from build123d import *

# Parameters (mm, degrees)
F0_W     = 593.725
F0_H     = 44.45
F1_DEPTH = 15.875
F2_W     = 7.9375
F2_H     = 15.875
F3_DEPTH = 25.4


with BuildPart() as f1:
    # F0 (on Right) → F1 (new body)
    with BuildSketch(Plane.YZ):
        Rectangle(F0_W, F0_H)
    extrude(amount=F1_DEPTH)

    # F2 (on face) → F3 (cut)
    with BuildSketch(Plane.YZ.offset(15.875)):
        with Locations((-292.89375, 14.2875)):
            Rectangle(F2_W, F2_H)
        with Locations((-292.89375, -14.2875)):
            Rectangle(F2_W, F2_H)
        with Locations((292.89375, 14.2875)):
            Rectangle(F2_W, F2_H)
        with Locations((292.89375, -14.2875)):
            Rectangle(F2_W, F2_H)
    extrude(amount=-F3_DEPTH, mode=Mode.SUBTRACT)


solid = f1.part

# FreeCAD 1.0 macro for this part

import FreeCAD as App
import Part
import Sketcher

V = App.Vector
Q = App.Units.Quantity

doc = App.newDocument("Part")
body = doc.addObject("PartDesign::Body", "Body")

# Sketch on YZ plane
sketch1 = body.newObject("Sketcher::SketchObject", "Sketch")
sketch1.AttachmentSupport = (doc.getObject("YZ_Plane"), [""])
sketch1.MapMode = "FlatFace"
sketch1.addGeometry([
    Part.LineSegment(V(-296.8625, 22.225, 0), V(-296.8625, -22.225, 0)),
    Part.LineSegment(V(-296.8625, -22.225, 0), V(296.8625, -22.225, 0)),
    Part.LineSegment(V(296.8625, -22.225, 0), V(296.8625, 22.225, 0)),
    Part.LineSegment(V(296.8625, 22.225, 0), V(-296.8625, 22.225, 0)),
], False)
sketch1.addConstraint([
    Sketcher.Constraint("Coincident", 0, 2, 1, 1),
    Sketcher.Constraint("Coincident", 1, 2, 2, 1),
    Sketcher.Constraint("Coincident", 2, 2, 3, 1),
    Sketcher.Constraint("Coincident", 3, 2, 0, 1),
    Sketcher.Constraint("Vertical", 0),
    Sketcher.Constraint("Horizontal", 1),
    Sketcher.Constraint("Vertical", 2),
    Sketcher.Constraint("Horizontal", 3),
    Sketcher.Constraint("Symmetric", 0, 2, 2, 2, -1, 1),
    Sketcher.Constraint("DistanceY", 0, 2, 0, 1, Q("1.75 in")),
    Sketcher.Constraint("DistanceX", 1, 1, 1, 2, Q("23.375 in")),
])
pad1 = body.newObject("PartDesign::Pad", "Pad")
pad1.Profile = sketch1
pad1.Length = Q("0.625 in")

# Sketch on YZ plane
sketch2 = body.newObject("Sketcher::SketchObject", "Sketch001")
sketch2.AttachmentSupport = (doc.getObject("YZ_Plane"), [""])
sketch2.MapMode = "FlatFace"
sketch2.AttachmentOffset = App.Placement(V(0, 0, 0.625 * 25.4), App.Rotation())
sketch2.addGeometry([
    Part.LineSegment(V(-296.8625, 22.225, 0), V(-296.8625, 6.35, 0)),  # 0
    Part.LineSegment(V(-296.8625, 6.35, 0), V(-288.925, 6.35, 0)),  # 1
    Part.LineSegment(V(-288.925, 6.35, 0), V(-288.925, 22.225, 0)),  # 2
    Part.LineSegment(V(-288.925, 22.225, 0), V(-296.8625, 22.225, 0)),  # 3
    Part.LineSegment(V(-296.8625, -6.35, 0), V(-296.8625, -22.225, 0)),  # 4
    Part.LineSegment(V(-296.8625, -22.225, 0), V(-288.925, -22.225, 0)),  # 5
    Part.LineSegment(V(-288.925, -22.225, 0), V(-288.925, -6.35, 0)),  # 6
    Part.LineSegment(V(-288.925, -6.35, 0), V(-296.8625, -6.35, 0)),  # 7
    Part.LineSegment(V(288.925, 22.225, 0), V(288.925, 6.35, 0)),  # 8
    Part.LineSegment(V(288.925, 6.35, 0), V(296.8625, 6.35, 0)),  # 9
    Part.LineSegment(V(296.8625, 6.35, 0), V(296.8625, 22.225, 0)),  # 10
    Part.LineSegment(V(296.8625, 22.225, 0), V(288.925, 22.225, 0)),  # 11
    Part.LineSegment(V(288.925, -6.35, 0), V(288.925, -22.225, 0)),  # 12
    Part.LineSegment(V(288.925, -22.225, 0), V(296.8625, -22.225, 0)),  # 13
    Part.LineSegment(V(296.8625, -22.225, 0), V(296.8625, -6.35, 0)),  # 14
    Part.LineSegment(V(296.8625, -6.35, 0), V(288.925, -6.35, 0)),  # 15
], False)
sketch2.addConstraint([
    Sketcher.Constraint("Coincident", 0, 2, 1, 1),
    Sketcher.Constraint("Coincident", 1, 2, 2, 1),
    Sketcher.Constraint("Coincident", 2, 2, 3, 1),
    Sketcher.Constraint("Coincident", 3, 2, 0, 1),
    Sketcher.Constraint("Coincident", 4, 2, 5, 1),
    Sketcher.Constraint("Coincident", 5, 2, 6, 1),
    Sketcher.Constraint("Coincident", 6, 2, 7, 1),
    Sketcher.Constraint("Coincident", 7, 2, 4, 1),
    Sketcher.Constraint("Coincident", 8, 2, 9, 1),
    Sketcher.Constraint("Coincident", 9, 2, 10, 1),
    Sketcher.Constraint("Coincident", 10, 2, 11, 1),
    Sketcher.Constraint("Coincident", 11, 2, 8, 1),
    Sketcher.Constraint("Coincident", 12, 2, 13, 1),
    Sketcher.Constraint("Coincident", 13, 2, 14, 1),
    Sketcher.Constraint("Coincident", 14, 2, 15, 1),
    Sketcher.Constraint("Coincident", 15, 2, 12, 1),
    Sketcher.Constraint("Vertical", 0),
    Sketcher.Constraint("Horizontal", 1),
    Sketcher.Constraint("Vertical", 2),
    Sketcher.Constraint("Horizontal", 3),
    Sketcher.Constraint("Vertical", 4),
    Sketcher.Constraint("Horizontal", 5),
    Sketcher.Constraint("Vertical", 6),
    Sketcher.Constraint("Horizontal", 7),
    Sketcher.Constraint("Vertical", 8),
    Sketcher.Constraint("Horizontal", 9),
    Sketcher.Constraint("Vertical", 10),
    Sketcher.Constraint("Horizontal", 11),
    Sketcher.Constraint("Vertical", 12),
    Sketcher.Constraint("Horizontal", 13),
    Sketcher.Constraint("Vertical", 14),
    Sketcher.Constraint("Horizontal", 15),
    Sketcher.Constraint("Symmetric", 6, 2, 8, 2, -1, 1),
    Sketcher.Constraint("Symmetric", 4, 2, 10, 2, -1, 1),
    Sketcher.Constraint("Symmetric", 2, 2, 12, 2, -1, 1),
    Sketcher.Constraint("Symmetric", 0, 2, 14, 2, -1, 1),
    Sketcher.Constraint("Symmetric", 1, 2, 8, 2, -2),
    Sketcher.Constraint("Symmetric", 3, 2, 10, 2, -2),
    Sketcher.Constraint("DistanceY", 6, 2, 1, 2, Q("0.5 in")),
    Sketcher.Constraint("DistanceX", 1, 1, 1, 2, Q("0.3125 in")),
    Sketcher.Constraint("DistanceY", 0, 2, 0, 1, Q("0.625 in")),
    Sketcher.Constraint("DistanceX", 1, 2, 8, 2, Q("22.75 in")),
])
pocket1 = body.newObject("PartDesign::Pocket", "Pocket")
pocket1.Profile = sketch2
pocket1.Length = Q("1 in")

doc.recompute()
